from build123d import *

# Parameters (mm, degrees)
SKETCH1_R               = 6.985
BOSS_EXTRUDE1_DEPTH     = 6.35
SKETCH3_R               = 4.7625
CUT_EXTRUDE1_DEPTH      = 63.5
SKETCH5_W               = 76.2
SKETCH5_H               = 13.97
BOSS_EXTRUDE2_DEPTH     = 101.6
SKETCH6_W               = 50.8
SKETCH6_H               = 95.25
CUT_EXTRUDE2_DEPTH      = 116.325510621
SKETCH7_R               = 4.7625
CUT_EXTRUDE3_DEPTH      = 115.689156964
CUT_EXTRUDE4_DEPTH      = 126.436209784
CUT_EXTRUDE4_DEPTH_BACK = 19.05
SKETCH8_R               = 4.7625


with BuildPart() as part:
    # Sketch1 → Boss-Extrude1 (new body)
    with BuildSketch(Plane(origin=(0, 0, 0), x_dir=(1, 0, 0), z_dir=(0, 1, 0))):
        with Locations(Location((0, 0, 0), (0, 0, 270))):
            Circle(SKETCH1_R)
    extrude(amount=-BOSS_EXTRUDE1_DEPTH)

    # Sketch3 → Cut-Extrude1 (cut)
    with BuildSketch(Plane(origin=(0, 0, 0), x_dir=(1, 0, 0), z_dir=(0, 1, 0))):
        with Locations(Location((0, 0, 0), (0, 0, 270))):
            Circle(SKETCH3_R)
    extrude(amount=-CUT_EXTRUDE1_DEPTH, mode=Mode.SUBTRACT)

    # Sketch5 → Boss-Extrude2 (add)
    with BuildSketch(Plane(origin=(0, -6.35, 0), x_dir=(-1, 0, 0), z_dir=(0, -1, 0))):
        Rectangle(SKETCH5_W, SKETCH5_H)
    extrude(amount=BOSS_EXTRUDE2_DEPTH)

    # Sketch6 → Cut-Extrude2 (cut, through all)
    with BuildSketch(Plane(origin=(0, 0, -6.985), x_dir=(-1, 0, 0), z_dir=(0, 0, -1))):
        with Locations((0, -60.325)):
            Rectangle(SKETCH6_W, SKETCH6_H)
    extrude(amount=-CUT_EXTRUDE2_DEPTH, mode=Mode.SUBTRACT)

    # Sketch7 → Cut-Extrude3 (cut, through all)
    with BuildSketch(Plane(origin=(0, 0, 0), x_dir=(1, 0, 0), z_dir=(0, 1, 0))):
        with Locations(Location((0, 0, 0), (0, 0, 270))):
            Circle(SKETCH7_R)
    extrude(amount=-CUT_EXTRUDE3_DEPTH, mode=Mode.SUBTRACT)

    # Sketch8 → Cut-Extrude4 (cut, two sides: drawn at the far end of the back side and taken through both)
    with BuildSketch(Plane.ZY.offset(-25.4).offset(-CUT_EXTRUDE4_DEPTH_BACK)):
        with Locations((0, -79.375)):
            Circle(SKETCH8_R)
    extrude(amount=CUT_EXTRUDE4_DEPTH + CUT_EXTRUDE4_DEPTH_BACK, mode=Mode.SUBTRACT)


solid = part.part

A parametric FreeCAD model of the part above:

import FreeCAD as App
import Part
import Sketcher
from FreeCAD import Vector
Q = App.Units.Quantity


def add_polygon(sketch, points):
    """Adds a closed chain of lines whose ends are joined by coincident constraints."""
    first, n = sketch.GeometryCount, len(points)
    for a, b in zip(points, points[1:] + points[:1]):
        sketch.addGeometry(Part.LineSegment(App.Vector(*a, 0), App.Vector(*b, 0)), False)
    for i in range(n):
        sketch.addConstraint(Sketcher.Constraint("Coincident", first + i, 2, first + (i + 1) % n, 1))

doc = App.newDocument("Part")
body = doc.addObject("PartDesign::Body", "Body")

sketch1 = body.newObject("Sketcher::SketchObject", "Sketch")
sketch1.AttachmentSupport = (doc.getObject("XZ_Plane"), [""])
sketch1.MapMode = "FlatFace"
sketch1.addGeometry(Part.Circle(Vector(0, 0, 0), Vector(0, 0, 1), 7), False)
sketch1.addConstraint(Sketcher.Constraint("Coincident", 0, 3, -1, 1))
sketch1.addConstraint(Sketcher.Constraint("Diameter", 0, Q("0.55 in")))
pad1 = body.newObject("PartDesign::Pad", "Pad")
pad1.Profile = sketch1
pad1.Length = Q("0.25 in")

sketch2 = body.newObject("Sketcher::SketchObject", "Sketch001")
sketch2.AttachmentSupport = (doc.getObject("XZ_Plane"), [""])
sketch2.MapMode = "FlatFace"
sketch2.addGeometry(Part.Circle(Vector(0, 0, 0), Vector(0, 0, 1), 4.8), False)
sketch2.addConstraint(Sketcher.Constraint("Coincident", 0, 3, -1, 1))
sketch2.addConstraint(Sketcher.Constraint("Diameter", 0, Q("0.375 in")))
pocket1 = body.newObject("PartDesign::Pocket", "Pocket")
pocket1.Profile = sketch2
pocket1.Length = Q("2.5 in")
pocket1.Reversed = True

sketch3 = body.newObject("Sketcher::SketchObject", "Sketch002")
sketch3.AttachmentSupport = (doc.getObject("XZ_Plane"), [""])
sketch3.MapMode = "FlatFace"
sketch3.AttachmentOffset = App.Placement(Vector(0, 0, 0.25 * 25.4), App.Rotation())
add_polygon(sketch3, [(38, -7), (38, 7), (-38, 7), (-38, -7)])
sketch3.addConstraint(Sketcher.Constraint("Vertical", 0))
sketch3.addConstraint(Sketcher.Constraint("Horizontal", 1))
sketch3.addConstraint(Sketcher.Constraint("Vertical", 2))
sketch3.addConstraint(Sketcher.Constraint("Horizontal", 3))
sketch3.addConstraint(Sketcher.Constraint("Symmetric", 0, 2, 2, 2, -1, 1))
sketch3.addConstraint(Sketcher.Constraint("DistanceX", 1, 2, 1, 1, Q("3 in")))
sketch3.addConstraint(Sketcher.Constraint("DistanceY", 0, 1, 0, 2, Q("0.55 in")))
pad2 = body.newObject("PartDesign::Pad", "Pad001")
pad2.Profile = sketch3
pad2.Length = Q("4 in")

sketch4 = body.newObject("Sketcher::SketchObject", "Sketch003")
sketch4.AttachmentSupport = (doc.getObject("XY_Plane"), [""])
sketch4.MapMode = "FlatFace"
sketch4.AttachmentOffset = App.Placement(Vector(0, 0, -0.275 * 25.4), App.Rotation())
add_polygon(sketch4, [(25, -13), (25, -108), (-25, -108), (-25, -13)])
sketch4.addConstraint(Sketcher.Constraint("Vertical", 0))
sketch4.addConstraint(Sketcher.Constraint("Horizontal", 1))
sketch4.addConstraint(Sketcher.Constraint("Vertical", 2))
sketch4.addConstraint(Sketcher.Constraint("Horizontal", 3))
sketch4.addConstraint(Sketcher.Constraint("DistanceX", 1, 2, 1, 1, Q("2 in")))
sketch4.addConstraint(Sketcher.Constraint("DistanceX", -1, 1, 0, 2, Q("1 in")))
sketch4.addConstraint(Sketcher.Constraint("DistanceY", 0, 2, 0, 1, Q("3.75 in")))
sketch4.addConstraint(Sketcher.Constraint("DistanceY", 2, 2, -1, 1, Q("0.5 in")))
pocket2 = body.newObject("PartDesign::Pocket", "Pocket001")
pocket2.Profile = sketch4
pocket2.Type = "ThroughAll"
pocket2.Reversed = True

sketch5 = body.newObject("Sketcher::SketchObject", "Sketch004")
sketch5.AttachmentSupport = (doc.getObject("XZ_Plane"), [""])
sketch5.MapMode = "FlatFace"
sketch5.addGeometry(Part.Circle(Vector(0, 0, 0), Vector(0, 0, 1), 4.8), False)
sketch5.addConstraint(Sketcher.Constraint("Coincident", 0, 3, -1, 1))
sketch5.addConstraint(Sketcher.Constraint("Diameter", 0, Q("0.375 in")))
pocket3 = body.newObject("PartDesign::Pocket", "Pocket002")
pocket3.Profile = sketch5
pocket3.Type = "ThroughAll"
pocket3.Reversed = True

sketch6 = body.newObject("Sketcher::SketchObject", "Sketch005")
sketch6.AttachmentSupport = (doc.getObject("YZ_Plane"), [""])
sketch6.MapMode = "FlatFace"
sketch6.AttachmentOffset = App.Placement(Vector(0, 0, 1 * 25.4), App.Rotation())
sketch6.addGeometry(Part.Circle(Vector(-79.4, 0, 0), Vector(0, 0, 1), 4.8), False)
sketch6.addConstraint(Sketcher.Constraint("PointOnObject", 0, 3, -1))
sketch6.addConstraint(Sketcher.Constraint("Diameter", 0, Q("0.375 in")))
sketch6.addConstraint(Sketcher.Constraint("DistanceX", 0, 3, -1, 1, Q("3.125 in")))
pocket4 = body.newObject("PartDesign::Pocket", "Pocket003")
pocket4.Profile = sketch6
pocket4.Type = "ThroughAll"
pocket4.Midplane = True

doc.recompute()
